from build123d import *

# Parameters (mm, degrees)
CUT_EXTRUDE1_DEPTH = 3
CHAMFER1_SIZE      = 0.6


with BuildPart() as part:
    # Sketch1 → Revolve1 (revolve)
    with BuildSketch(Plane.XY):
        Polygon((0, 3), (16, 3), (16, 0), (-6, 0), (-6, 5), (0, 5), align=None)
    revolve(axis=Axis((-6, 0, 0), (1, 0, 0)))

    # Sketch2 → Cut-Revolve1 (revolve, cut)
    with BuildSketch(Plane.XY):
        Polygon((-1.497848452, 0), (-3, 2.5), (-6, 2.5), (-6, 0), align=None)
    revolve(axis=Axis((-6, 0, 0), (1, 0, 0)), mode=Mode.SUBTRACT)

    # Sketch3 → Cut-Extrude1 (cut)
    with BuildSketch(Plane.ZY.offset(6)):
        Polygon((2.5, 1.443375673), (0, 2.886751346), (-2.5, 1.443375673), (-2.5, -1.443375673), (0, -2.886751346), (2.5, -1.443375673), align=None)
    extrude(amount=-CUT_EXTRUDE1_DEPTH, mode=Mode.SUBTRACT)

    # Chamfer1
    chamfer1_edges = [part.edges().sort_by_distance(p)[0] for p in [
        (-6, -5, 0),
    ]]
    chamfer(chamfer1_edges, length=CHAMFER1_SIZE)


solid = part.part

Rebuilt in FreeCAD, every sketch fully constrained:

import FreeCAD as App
import Part
import Sketcher

V = App.Vector
Q = App.Units.Quantity


def edges_at(feature, points):
    """Names of the edges that pass closest to the given points."""
    edges = feature.Shape.Edges
    near = lambda p: min(range(len(edges)), key=lambda i: edges[i].distToShape(Part.Vertex(*p))[0])
    return sorted({f"Edge{near(p) + 1}" for p in points})


def add_polygon(sketch, points):
    """Adds a closed chain of lines whose ends are joined by coincident constraints."""
    first, n = sketch.GeometryCount, len(points)
    for a, b in zip(points, points[1:] + points[:1]):
        sketch.addGeometry(Part.LineSegment(App.Vector(*a, 0), App.Vector(*b, 0)), False)
    for i in range(n):
        sketch.addConstraint(Sketcher.Constraint("Coincident", first + i, 2, first + (i + 1) % n, 1))

doc = App.newDocument("Part")
body = doc.addObject("PartDesign::Body", "Body")

sketch1 = body.newObject("Sketcher::SketchObject", "Sketch")
sketch1.AttachmentSupport = (doc.getObject("XY_Plane"), [""])
sketch1.MapMode = "FlatFace"
add_polygon(sketch1, [(16, 3), (0, 3), (0, 5), (-6, 5), (-6, 0), (16, 0)])
sketch1.addConstraint([
    Sketcher.Constraint("Horizontal", 0),
    Sketcher.Constraint("Vertical", 1),
    Sketcher.Constraint("Horizontal", 2),
    Sketcher.Constraint("Vertical", 3),
    Sketcher.Constraint("Horizontal", 4),
    Sketcher.Constraint("Vertical", 5),
    Sketcher.Constraint("PointOnObject", 0, 2, -2),
    Sketcher.Constraint("PointOnObject", 3, 2, -1),
    Sketcher.Constraint("DistanceX", 0, 2, 0, 1, Q("16 mm")),
    Sketcher.Constraint("DistanceX", 2, 2, 2, 1, Q("6 mm")),
    Sketcher.Constraint("DistanceY", 1, 1, 1, 2, Q("2 mm")),
    Sketcher.Constraint("DistanceY", 3, 2, 3, 1, Q("5 mm")),
])
revolution = body.newObject("PartDesign::Revolution", "Revolution")
revolution.Profile = sketch1
revolution.ReferenceAxis = (sketch1, ["H_Axis"])
revolution.Angle = 360

sketch2 = body.newObject("Sketcher::SketchObject", "Sketch001")
sketch2.AttachmentSupport = (doc.getObject("XY_Plane"), [""])
sketch2.MapMode = "FlatFace"
add_polygon(sketch2, [(-1.497848, 0), (-3, 2.5), (-6, 2.5), (-6, 0)])
sketch2.addConstraint([
    Sketcher.Constraint("Horizontal", 1),
    Sketcher.Constraint("Vertical", 2),
    Sketcher.Constraint("Horizontal", 3),
    Sketcher.Constraint("PointOnObject", 2, 2, -1),
    Sketcher.Constraint("DistanceX", 1, 2, 1, 1, Q("3 mm")),
    Sketcher.Constraint("Angle", 0, Q("121 deg")),
    Sketcher.Constraint("DistanceY", 2, 2, 2, 1, Q("2.5 mm")),
    Sketcher.Constraint("DistanceX", 0, 2, -1, 1, Q("3 mm")),
])
groove = body.newObject("PartDesign::Groove", "Groove")
groove.Profile = sketch2
groove.ReferenceAxis = (sketch2, ["H_Axis"])
groove.Angle = 360

sketch3 = body.newObject("Sketcher::SketchObject", "Sketch002")
sketch3.AttachmentSupport = (doc.getObject("YZ_Plane"), [""])
sketch3.MapMode = "FlatFace"
sketch3.AttachmentOffset = App.Placement(V(0, 0, -6), App.Rotation())
add_polygon(sketch3, [(1.443376, 2.5), (2.886751, 0), (1.443376, -2.5), (-1.443376, -2.5), (-2.886751, 0), (-1.443376, 2.5)])
sketch3.addConstraint([
    Sketcher.Constraint("Horizontal", 2),
    Sketcher.Constraint("Horizontal", 5),
    Sketcher.Constraint("Symmetric", 0, 2, 3, 2, -1, 1),
    Sketcher.Constraint("Symmetric", 1, 2, 4, 2, -1, 1),
    Sketcher.Constraint("PointOnObject", 0, 2, -1),
    Sketcher.Constraint("Parallel", 0, 3),
    Sketcher.Constraint("Vertical", 2, 2, 4, 2),
    Sketcher.Constraint("Angle", 0, Q("-60 deg")),
    Sketcher.Constraint("DistanceY", 2, 2, 4, 2, Q("5 mm")),
    Sketcher.Constraint("DistanceX", 2, 2, 2, 1, Q("2.886751 mm")),
])
pocket1 = body.newObject("PartDesign::Pocket", "Pocket")
pocket1.Profile = sketch3
pocket1.Length = 3
pocket1.Reversed = True
doc.recompute()

chamfer = body.newObject("PartDesign::Chamfer", "Chamfer")
chamfer.Base = (pocket1, edges_at(pocket1, [(-6, -5, 0)]))
chamfer.Size = 0.6

doc.recompute()
